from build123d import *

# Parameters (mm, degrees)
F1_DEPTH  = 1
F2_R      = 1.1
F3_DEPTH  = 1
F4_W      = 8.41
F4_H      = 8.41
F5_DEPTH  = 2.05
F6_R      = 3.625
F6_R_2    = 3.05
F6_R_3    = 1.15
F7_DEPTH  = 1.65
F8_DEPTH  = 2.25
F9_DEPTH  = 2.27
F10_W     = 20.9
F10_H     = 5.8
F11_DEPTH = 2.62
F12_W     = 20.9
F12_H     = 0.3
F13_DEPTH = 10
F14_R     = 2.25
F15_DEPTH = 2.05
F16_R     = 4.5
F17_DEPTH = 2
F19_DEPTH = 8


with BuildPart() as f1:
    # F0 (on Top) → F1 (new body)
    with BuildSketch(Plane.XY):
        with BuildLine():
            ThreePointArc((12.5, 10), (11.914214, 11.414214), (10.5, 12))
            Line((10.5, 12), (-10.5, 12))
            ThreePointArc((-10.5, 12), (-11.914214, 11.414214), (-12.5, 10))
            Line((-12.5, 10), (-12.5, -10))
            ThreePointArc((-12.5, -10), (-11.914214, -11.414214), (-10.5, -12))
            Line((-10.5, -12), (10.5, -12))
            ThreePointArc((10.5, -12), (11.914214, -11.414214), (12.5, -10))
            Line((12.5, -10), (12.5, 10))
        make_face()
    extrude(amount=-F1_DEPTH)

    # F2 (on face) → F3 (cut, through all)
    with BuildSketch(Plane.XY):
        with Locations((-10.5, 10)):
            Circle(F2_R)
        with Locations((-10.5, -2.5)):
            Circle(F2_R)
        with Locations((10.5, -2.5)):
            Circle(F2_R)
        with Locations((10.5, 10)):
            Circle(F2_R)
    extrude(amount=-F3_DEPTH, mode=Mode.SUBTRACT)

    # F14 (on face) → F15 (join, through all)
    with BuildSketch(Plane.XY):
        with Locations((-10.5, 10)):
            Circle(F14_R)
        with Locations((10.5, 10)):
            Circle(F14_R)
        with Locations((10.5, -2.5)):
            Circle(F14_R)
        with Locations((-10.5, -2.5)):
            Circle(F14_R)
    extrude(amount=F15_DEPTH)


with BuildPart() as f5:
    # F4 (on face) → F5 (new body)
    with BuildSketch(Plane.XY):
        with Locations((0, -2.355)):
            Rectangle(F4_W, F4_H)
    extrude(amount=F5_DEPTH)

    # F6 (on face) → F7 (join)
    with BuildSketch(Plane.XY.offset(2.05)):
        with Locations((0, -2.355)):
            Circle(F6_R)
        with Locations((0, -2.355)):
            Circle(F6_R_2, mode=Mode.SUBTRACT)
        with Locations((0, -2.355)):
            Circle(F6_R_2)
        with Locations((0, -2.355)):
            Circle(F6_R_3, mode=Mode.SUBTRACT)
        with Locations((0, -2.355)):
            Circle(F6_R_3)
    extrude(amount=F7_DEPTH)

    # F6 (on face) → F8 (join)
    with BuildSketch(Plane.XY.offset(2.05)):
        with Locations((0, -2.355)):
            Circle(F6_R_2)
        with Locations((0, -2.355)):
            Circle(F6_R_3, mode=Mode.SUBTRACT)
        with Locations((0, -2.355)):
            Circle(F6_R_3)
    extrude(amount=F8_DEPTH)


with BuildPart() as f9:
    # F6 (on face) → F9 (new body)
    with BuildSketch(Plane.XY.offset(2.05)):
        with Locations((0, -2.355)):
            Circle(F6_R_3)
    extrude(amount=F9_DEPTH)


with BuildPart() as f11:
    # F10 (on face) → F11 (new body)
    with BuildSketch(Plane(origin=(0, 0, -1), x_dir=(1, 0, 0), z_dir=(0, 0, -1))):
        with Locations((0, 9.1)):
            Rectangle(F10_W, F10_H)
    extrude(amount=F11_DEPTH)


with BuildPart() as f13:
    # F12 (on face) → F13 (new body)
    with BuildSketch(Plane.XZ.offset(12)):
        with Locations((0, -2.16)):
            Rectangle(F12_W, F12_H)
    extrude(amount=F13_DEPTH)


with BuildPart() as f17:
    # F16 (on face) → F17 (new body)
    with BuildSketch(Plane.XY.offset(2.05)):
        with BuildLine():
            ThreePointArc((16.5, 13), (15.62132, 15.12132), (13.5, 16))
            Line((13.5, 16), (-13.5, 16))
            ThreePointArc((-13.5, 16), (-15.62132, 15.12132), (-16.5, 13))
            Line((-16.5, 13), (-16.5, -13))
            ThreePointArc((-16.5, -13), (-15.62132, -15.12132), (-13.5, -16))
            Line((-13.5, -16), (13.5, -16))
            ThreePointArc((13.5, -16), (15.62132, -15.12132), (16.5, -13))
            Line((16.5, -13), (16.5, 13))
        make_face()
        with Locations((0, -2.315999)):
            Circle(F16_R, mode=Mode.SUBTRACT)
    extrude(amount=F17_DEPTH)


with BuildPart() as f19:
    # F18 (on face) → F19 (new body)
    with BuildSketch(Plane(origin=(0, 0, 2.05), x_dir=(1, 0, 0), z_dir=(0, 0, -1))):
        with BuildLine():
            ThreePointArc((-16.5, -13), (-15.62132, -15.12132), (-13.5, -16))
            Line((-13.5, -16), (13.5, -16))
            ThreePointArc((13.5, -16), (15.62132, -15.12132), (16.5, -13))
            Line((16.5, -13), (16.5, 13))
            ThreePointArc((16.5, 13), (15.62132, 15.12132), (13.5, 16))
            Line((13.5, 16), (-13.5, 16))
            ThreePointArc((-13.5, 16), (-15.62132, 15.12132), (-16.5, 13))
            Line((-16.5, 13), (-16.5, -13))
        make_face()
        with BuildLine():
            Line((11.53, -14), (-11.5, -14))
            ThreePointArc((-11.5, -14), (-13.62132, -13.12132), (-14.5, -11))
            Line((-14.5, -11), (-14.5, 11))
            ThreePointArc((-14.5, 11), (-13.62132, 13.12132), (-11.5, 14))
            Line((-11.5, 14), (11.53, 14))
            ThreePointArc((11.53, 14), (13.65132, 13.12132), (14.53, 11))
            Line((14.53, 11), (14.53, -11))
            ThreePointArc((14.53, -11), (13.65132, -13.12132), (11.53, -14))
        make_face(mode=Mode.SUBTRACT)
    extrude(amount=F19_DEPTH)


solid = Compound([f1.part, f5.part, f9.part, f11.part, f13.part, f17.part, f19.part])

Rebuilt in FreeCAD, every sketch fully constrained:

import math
import FreeCAD as App
import Part
import Sketcher
Q = App.Units.Quantity

doc = App.newDocument("Part")
body = doc.addObject("PartDesign::Body", "Body")

# Sketch on XY plane
sketch1 = doc.addObject("Sketcher::SketchObject", "Sketch")
body.addObject(sketch1)
sketch1.AttachmentSupport = (doc.XY_Plane, [""])
sketch1.MapMode = "FlatFace"
sketch1.addGeometry(Part.ArcOfCircle(Part.Circle(App.Vector(10.5, 10, 0), App.Vector(0, 0, 1), 2), math.radians(0), math.radians(90)), False)
sketch1.addGeometry(Part.LineSegment(App.Vector(10.5, 12, 0), App.Vector(-10.5, 12, 0)), False)
sketch1.addGeometry(Part.ArcOfCircle(Part.Circle(App.Vector(-10.5, 10, 0), App.Vector(0, 0, 1), 2), math.radians(90), math.radians(180)), False)
sketch1.addGeometry(Part.LineSegment(App.Vector(-12.5, 10, 0), App.Vector(-12.5, -10, 0)), False)
sketch1.addGeometry(Part.ArcOfCircle(Part.Circle(App.Vector(-10.5, -10, 0), App.Vector(0, 0, 1), 2), math.radians(180), math.radians(270)), False)
sketch1.addGeometry(Part.LineSegment(App.Vector(-10.5, -12, 0), App.Vector(10.5, -12, 0)), False)
sketch1.addGeometry(Part.ArcOfCircle(Part.Circle(App.Vector(10.5, -10, 0), App.Vector(0, 0, 1), 2), math.radians(-90), math.radians(0)), False)
sketch1.addGeometry(Part.LineSegment(App.Vector(12.5, -10, 0), App.Vector(12.5, 10, 0)), False)
sketch1.addConstraint(Sketcher.Constraint("Tangent", 0, 2, 1, 1))
sketch1.addConstraint(Sketcher.Constraint("Tangent", 1, 2, 2, 1))
sketch1.addConstraint(Sketcher.Constraint("Tangent", 2, 2, 3, 1))
sketch1.addConstraint(Sketcher.Constraint("Tangent", 3, 2, 4, 1))
sketch1.addConstraint(Sketcher.Constraint("Tangent", 4, 2, 5, 1))
sketch1.addConstraint(Sketcher.Constraint("Tangent", 5, 2, 6, 1))
sketch1.addConstraint(Sketcher.Constraint("Tangent", 6, 2, 7, 1))
sketch1.addConstraint(Sketcher.Constraint("Tangent", 7, 2, 0, 1))
sketch1.addConstraint(Sketcher.Constraint("Horizontal", 1))
sketch1.addConstraint(Sketcher.Constraint("Vertical", 3))
sketch1.addConstraint(Sketcher.Constraint("Horizontal", 5))
sketch1.addConstraint(Sketcher.Constraint("Vertical", 7))
sketch1.addConstraint(Sketcher.Constraint("Equal", 0, 2))
sketch1.addConstraint(Sketcher.Constraint("Equal", 2, 4))
sketch1.addConstraint(Sketcher.Constraint("Equal", 4, 6))
sketch1.addConstraint(Sketcher.Constraint("Symmetric", 0, 3, 4, 3, -1, 1))
sketch1.addConstraint(Sketcher.Constraint("Radius", 0, Q("1.999999 mm")))
sketch1.addConstraint(Sketcher.Constraint("DistanceX", 1, 2, 1, 1, Q("21 mm")))
sketch1.addConstraint(Sketcher.Constraint("DistanceY", 3, 2, 3, 1, Q("20 mm")))
pad1 = doc.addObject("PartDesign::Pad", "Pad")
body.addObject(pad1)
pad1.Profile = sketch1
pad1.Length = 1
pad1.Reversed = True

# Sketch on XY plane
sketch2 = doc.addObject("Sketcher::SketchObject", "Sketch001")
body.addObject(sketch2)
sketch2.AttachmentSupport = (doc.XY_Plane, [""])
sketch2.MapMode = "FlatFace"
sketch2.addGeometry(Part.Circle(App.Vector(-10.5, 10, 0), App.Vector(0, 0, 1), 1.1), False)
sketch2.addGeometry(Part.Circle(App.Vector(-10.5, -2.5, 0), App.Vector(0, 0, 1), 1.1), False)
sketch2.addGeometry(Part.Circle(App.Vector(10.5, -2.5, 0), App.Vector(0, 0, 1), 1.1), False)
sketch2.addGeometry(Part.Circle(App.Vector(10.5, 10, 0), App.Vector(0, 0, 1), 1.1), False)
sketch2.addConstraint(Sketcher.Constraint("Equal", 0, 1))
sketch2.addConstraint(Sketcher.Constraint("Equal", 1, 2))
sketch2.addConstraint(Sketcher.Constraint("Equal", 2, 3))
sketch2.addConstraint(Sketcher.Constraint("Symmetric", 1, 3, 2, 3, -2))
sketch2.addConstraint(Sketcher.Constraint("Symmetric", 0, 3, 3, 3, -2))
sketch2.addConstraint(Sketcher.Constraint("Vertical", 0, 3, 1, 3))
sketch2.addConstraint(Sketcher.Constraint("Diameter", 0, Q("2.2 mm")))
sketch2.addConstraint(Sketcher.Constraint("DistanceY", -1, 1, 0, 3, Q("10 mm")))
sketch2.addConstraint(Sketcher.Constraint("DistanceX", 1, 3, 2, 3, Q("21 mm")))
sketch2.addConstraint(Sketcher.Constraint("DistanceY", 1, 3, -1, 1, Q("2.5 mm")))
pocket1 = doc.addObject("PartDesign::Pocket", "Pocket")
body.addObject(pocket1)
pocket1.Profile = sketch2
pocket1.Type = "ThroughAll"

# Sketch on XY plane
sketch3 = doc.addObject("Sketcher::SketchObject", "Sketch002")
body.addObject(sketch3)
sketch3.AttachmentSupport = (doc.XY_Plane, [""])
sketch3.MapMode = "FlatFace"
sketch3.addGeometry(Part.Circle(App.Vector(-10.5, 10, 0), App.Vector(0, 0, 1), 2.2), False)
sketch3.addGeometry(Part.Circle(App.Vector(10.5, 10, 0), App.Vector(0, 0, 1), 2.2), False)
sketch3.addGeometry(Part.Circle(App.Vector(10.5, -2.5, 0), App.Vector(0, 0, 1), 2.2), False)
sketch3.addGeometry(Part.Circle(App.Vector(-10.5, -2.5, 0), App.Vector(0, 0, 1), 2.2), False)
sketch3.addConstraint(Sketcher.Constraint("Equal", 0, 1))
sketch3.addConstraint(Sketcher.Constraint("Equal", 1, 2))
sketch3.addConstraint(Sketcher.Constraint("Equal", 2, 3))
sketch3.addConstraint(Sketcher.Constraint("Symmetric", 0, 3, 1, 3, -2))
sketch3.addConstraint(Sketcher.Constraint("Symmetric", 2, 3, 3, 3, -2))
sketch3.addConstraint(Sketcher.Constraint("Vertical", 1, 3, 2, 3))
sketch3.addConstraint(Sketcher.Constraint("Diameter", 0, Q("4.5 mm")))
sketch3.addConstraint(Sketcher.Constraint("DistanceY", -1, 1, 0, 3, Q("10 mm")))
sketch3.addConstraint(Sketcher.Constraint("DistanceX", 0, 3, 1, 3, Q("21 mm")))
sketch3.addConstraint(Sketcher.Constraint("DistanceY", 2, 3, -1, 1, Q("2.5 mm")))
pad2 = doc.addObject("PartDesign::Pad", "Pad001")
body.addObject(pad2)
pad2.Profile = sketch3
pad2.Length = 2.05
body2 = doc.addObject("PartDesign::Body", "Body001")

# Sketch on XY plane
sketch4 = doc.addObject("Sketcher::SketchObject", "Sketch003")
body2.addObject(sketch4)
sketch4.AttachmentSupport = (doc.getObject("XY_Plane001"), [""])
sketch4.MapMode = "FlatFace"
sketch4.addGeometry(Part.LineSegment(App.Vector(-4, 2, 0), App.Vector(-4, -7, 0)), False)
sketch4.addGeometry(Part.LineSegment(App.Vector(-4, -7, 0), App.Vector(4, -7, 0)), False)
sketch4.addGeometry(Part.LineSegment(App.Vector(4, -7, 0), App.Vector(4, 2, 0)), False)
sketch4.addGeometry(Part.LineSegment(App.Vector(4, 2, 0), App.Vector(-4, 2, 0)), False)
sketch4.addConstraint(Sketcher.Constraint("Coincident", 0, 2, 1, 1))
sketch4.addConstraint(Sketcher.Constraint("Coincident", 1, 2, 2, 1))
sketch4.addConstraint(Sketcher.Constraint("Coincident", 2, 2, 3, 1))
sketch4.addConstraint(Sketcher.Constraint("Coincident", 3, 2, 0, 1))
sketch4.addConstraint(Sketcher.Constraint("Vertical", 0))
sketch4.addConstraint(Sketcher.Constraint("Horizontal", 1))
sketch4.addConstraint(Sketcher.Constraint("Vertical", 2))
sketch4.addConstraint(Sketcher.Constraint("Horizontal", 3))
sketch4.addConstraint(Sketcher.Constraint("Equal", 3, 0))
sketch4.addConstraint(Sketcher.Constraint("DistanceX", 1, 1, 1, 2, Q("8.41 mm")))
sketch4.addConstraint(Sketcher.Constraint("DistanceY", 0, 2, -1, 1, Q("6.56 mm")))
sketch4.addConstraint(Sketcher.Constraint("DistanceX", 0, 2, -1, 1, Q("4.205 mm")))
pad3 = doc.addObject("PartDesign::Pad", "Pad002")
body2.addObject(pad3)
pad3.Profile = sketch4
pad3.Length = 2.05

# Sketch on XY plane
sketch5 = doc.addObject("Sketcher::SketchObject", "Sketch004")
body2.addObject(sketch5)
sketch5.AttachmentSupport = (doc.getObject("XY_Plane001"), [""])
sketch5.MapMode = "FlatFace"
sketch5.AttachmentOffset = App.Placement(App.Vector(0, 0, 2.05), App.Rotation())
sketch5.addGeometry(Part.Circle(App.Vector(0, -2.4, 0), App.Vector(0, 0, 1), 3.6), False)
sketch5.addConstraint(Sketcher.Constraint("PointOnObject", 0, 3, -2))
sketch5.addConstraint(Sketcher.Constraint("Diameter", 0, Q("7.25 mm")))
sketch5.addConstraint(Sketcher.Constraint("DistanceY", 0, 3, -1, 1, Q("2.355 mm")))
pad4 = doc.addObject("PartDesign::Pad", "Pad003")
body2.addObject(pad4)
pad4.Profile = sketch5
pad4.Length = 1.65

# Sketch on XY plane
sketch6 = doc.addObject("Sketcher::SketchObject", "Sketch005")
body2.addObject(sketch6)
sketch6.AttachmentSupport = (doc.getObject("XY_Plane001"), [""])
sketch6.MapMode = "FlatFace"
sketch6.AttachmentOffset = App.Placement(App.Vector(0, 0, 2.05), App.Rotation())
sketch6.addGeometry(Part.Circle(App.Vector(0, -2.4, 0), App.Vector(0, 0, 1), 3), False)
sketch6.addConstraint(Sketcher.Constraint("PointOnObject", 0, 3, -2))
sketch6.addConstraint(Sketcher.Constraint("Diameter", 0, Q("6.1 mm")))
sketch6.addConstraint(Sketcher.Constraint("DistanceY", 0, 3, -1, 1, Q("2.355 mm")))
pad5 = doc.addObject("PartDesign::Pad", "Pad004")
body2.addObject(pad5)
pad5.Profile = sketch6
pad5.Length = 2.25
body3 = doc.addObject("PartDesign::Body", "Body002")

# Sketch on XY plane
sketch7 = doc.addObject("Sketcher::SketchObject", "Sketch006")
body3.addObject(sketch7)
sketch7.AttachmentSupport = (doc.getObject("XY_Plane002"), [""])
sketch7.MapMode = "FlatFace"
sketch7.AttachmentOffset = App.Placement(App.Vector(0, 0, 2.05), App.Rotation())
sketch7.addGeometry(Part.Circle(App.Vector(0, -2.4, 0), App.Vector(0, 0, 1), 1.1), False)
sketch7.addConstraint(Sketcher.Constraint("PointOnObject", 0, 3, -2))
sketch7.addConstraint(Sketcher.Constraint("Diameter", 0, Q("2.3 mm")))
sketch7.addConstraint(Sketcher.Constraint("DistanceY", 0, 3, -1, 1, Q("2.355 mm")))
pad6 = doc.addObject("PartDesign::Pad", "Pad005")
body3.addObject(pad6)
pad6.Profile = sketch7
pad6.Length = 2.27
body4 = doc.addObject("PartDesign::Body", "Body003")

# Sketch on XY plane
sketch8 = doc.addObject("Sketcher::SketchObject", "Sketch007")
body4.addObject(sketch8)
sketch8.AttachmentSupport = (doc.getObject("XY_Plane003"), [""])
sketch8.MapMode = "FlatFace"
sketch8.AttachmentOffset = App.Placement(App.Vector(0, 0, -1), App.Rotation())
sketch8.addGeometry(Part.LineSegment(App.Vector(-10, -12, 0), App.Vector(-10, -6, 0)), False)
sketch8.addGeometry(Part.LineSegment(App.Vector(-10, -6, 0), App.Vector(10, -6, 0)), False)
sketch8.addGeometry(Part.LineSegment(App.Vector(10, -6, 0), App.Vector(10, -12, 0)), False)
sketch8.addGeometry(Part.LineSegment(App.Vector(10, -12, 0), App.Vector(-10, -12, 0)), False)
sketch8.addConstraint(Sketcher.Constraint("Coincident", 0, 2, 1, 1))
sketch8.addConstraint(Sketcher.Constraint("Coincident", 1, 2, 2, 1))
sketch8.addConstraint(Sketcher.Constraint("Coincident", 2, 2, 3, 1))
sketch8.addConstraint(Sketcher.Constraint("Coincident", 3, 2, 0, 1))
sketch8.addConstraint(Sketcher.Constraint("Vertical", 0))
sketch8.addConstraint(Sketcher.Constraint("Horizontal", 1))
sketch8.addConstraint(Sketcher.Constraint("Vertical", 2))
sketch8.addConstraint(Sketcher.Constraint("Horizontal", 3))
sketch8.addConstraint(Sketcher.Constraint("DistanceX", 1, 1, 1, 2, Q("20.9 mm")))
sketch8.addConstraint(Sketcher.Constraint("DistanceY", 0, 1, 0, 2, Q("5.8 mm")))
sketch8.addConstraint(Sketcher.Constraint("DistanceY", 2, 2, -1, 1, Q("12 mm")))
sketch8.addConstraint(Sketcher.Constraint("DistanceX", 0, 2, -1, 1, Q("10.45 mm")))
pad7 = doc.addObject("PartDesign::Pad", "Pad006")
body4.addObject(pad7)
pad7.Profile = sketch8
pad7.Length = 2.62
pad7.Reversed = True
body5 = doc.addObject("PartDesign::Body", "Body004")

# Sketch on XZ plane
sketch9 = doc.addObject("Sketcher::SketchObject", "Sketch008")
body5.addObject(sketch9)
sketch9.AttachmentSupport = (doc.getObject("XZ_Plane004"), [""])
sketch9.MapMode = "FlatFace"
sketch9.AttachmentOffset = App.Placement(App.Vector(0, 0, 12), App.Rotation())
sketch9.addGeometry(Part.LineSegment(App.Vector(-10.45, -2.01, 0), App.Vector(-10.45, -2.31, 0)), False)
sketch9.addGeometry(Part.LineSegment(App.Vector(-10.45, -2.31, 0), App.Vector(10.45, -2.31, 0)), False)
sketch9.addGeometry(Part.LineSegment(App.Vector(10.45, -2.31, 0), App.Vector(10.45, -2.01, 0)), False)
sketch9.addGeometry(Part.LineSegment(App.Vector(10.45, -2.01, 0), App.Vector(-10.45, -2.01, 0)), False)
sketch9.addConstraint(Sketcher.Constraint("Coincident", 0, 2, 1, 1))
sketch9.addConstraint(Sketcher.Constraint("Coincident", 1, 2, 2, 1))
sketch9.addConstraint(Sketcher.Constraint("Coincident", 2, 2, 3, 1))
sketch9.addConstraint(Sketcher.Constraint("Coincident", 3, 2, 0, 1))
sketch9.addConstraint(Sketcher.Constraint("Vertical", 0))
sketch9.addConstraint(Sketcher.Constraint("Horizontal", 1))
sketch9.addConstraint(Sketcher.Constraint("Vertical", 2))
sketch9.addConstraint(Sketcher.Constraint("Horizontal", 3))
sketch9.addConstraint(Sketcher.Constraint("DistanceX", 1, 1, 1, 2, Q("20.9 mm")))
sketch9.addConstraint(Sketcher.Constraint("DistanceY", 0, 2, 0, 1, Q("0.3 mm")))
sketch9.addConstraint(Sketcher.Constraint("DistanceX", 0, 2, -1, 1, Q("10.45 mm")))
sketch9.addConstraint(Sketcher.Constraint("DistanceY", 0, 2, -1, 1, Q("2.31 mm")))
pad8 = doc.addObject("PartDesign::Pad", "Pad007")
body5.addObject(pad8)
pad8.Profile = sketch9
pad8.Length = 10
body6 = doc.addObject("PartDesign::Body", "Body005")

# Sketch on XY plane
sketch10 = doc.addObject("Sketcher::SketchObject", "Sketch009")
body6.addObject(sketch10)
sketch10.AttachmentSupport = (doc.getObject("XY_Plane005"), [""])
sketch10.MapMode = "FlatFace"
sketch10.AttachmentOffset = App.Placement(App.Vector(0, 0, 2.05), App.Rotation())
sketch10.addGeometry(Part.ArcOfCircle(Part.Circle(App.Vector(13.5, 13, 0), App.Vector(0, 0, 1), 3), math.radians(0), math.radians(90)), False)
sketch10.addGeometry(Part.LineSegment(App.Vector(13.5, 16, 0), App.Vector(-13.5, 16, 0)), False)
sketch10.addGeometry(Part.ArcOfCircle(Part.Circle(App.Vector(-13.5, 13, 0), App.Vector(0, 0, 1), 3), math.radians(90), math.radians(180)), False)
sketch10.addGeometry(Part.LineSegment(App.Vector(-16.5, 13, 0), App.Vector(-16.5, -13, 0)), False)
sketch10.addGeometry(Part.ArcOfCircle(Part.Circle(App.Vector(-13.5, -13, 0), App.Vector(0, 0, 1), 3), math.radians(-180), math.radians(-90)), False)
sketch10.addGeometry(Part.LineSegment(App.Vector(-13.5, -16, 0), App.Vector(13.5, -16, 0)), False)
sketch10.addGeometry(Part.ArcOfCircle(Part.Circle(App.Vector(13.5, -13, 0), App.Vector(0, 0, 1), 3), math.radians(-90), math.radians(0)), False)
sketch10.addGeometry(Part.LineSegment(App.Vector(16.5, -13, 0), App.Vector(16.5, 13, 0)), False)
sketch10.addGeometry(Part.Circle(App.Vector(0, -2.3, 0), App.Vector(0, 0, 1), 4.5), False)
sketch10.addConstraint(Sketcher.Constraint("Tangent", 0, 2, 1, 1))
sketch10.addConstraint(Sketcher.Constraint("Tangent", 1, 2, 2, 1))
sketch10.addConstraint(Sketcher.Constraint("Tangent", 2, 2, 3, 1))
sketch10.addConstraint(Sketcher.Constraint("Tangent", 3, 2, 4, 1))
sketch10.addConstraint(Sketcher.Constraint("Tangent", 4, 2, 5, 1))
sketch10.addConstraint(Sketcher.Constraint("Tangent", 5, 2, 6, 1))
sketch10.addConstraint(Sketcher.Constraint("Tangent", 6, 2, 7, 1))
sketch10.addConstraint(Sketcher.Constraint("Tangent", 7, 2, 0, 1))
sketch10.addConstraint(Sketcher.Constraint("Horizontal", 1))
sketch10.addConstraint(Sketcher.Constraint("Vertical", 3))
sketch10.addConstraint(Sketcher.Constraint("Horizontal", 5))
sketch10.addConstraint(Sketcher.Constraint("Vertical", 7))
sketch10.addConstraint(Sketcher.Constraint("Equal", 0, 2))
sketch10.addConstraint(Sketcher.Constraint("Equal", 2, 4))
sketch10.addConstraint(Sketcher.Constraint("Equal", 4, 6))
sketch10.addConstraint(Sketcher.Constraint("Symmetric", 0, 3, 4, 3, -1, 1))
sketch10.addConstraint(Sketcher.Constraint("PointOnObject", 8, 3, -2))
sketch10.addConstraint(Sketcher.Constraint("Diameter", 8, Q("9 mm")))
sketch10.addConstraint(Sketcher.Constraint("Radius", 0, Q("3.000001 mm")))
sketch10.addConstraint(Sketcher.Constraint("DistanceX", 1, 2, 1, 1, Q("27 mm")))
sketch10.addConstraint(Sketcher.Constraint("DistanceY", 3, 2, 3, 1, Q("26 mm")))
sketch10.addConstraint(Sketcher.Constraint("DistanceY", 8, 3, -1, 1, Q("2.315999 mm")))
pad9 = doc.addObject("PartDesign::Pad", "Pad008")
body6.addObject(pad9)
pad9.Profile = sketch10
pad9.Length = 2
body7 = doc.addObject("PartDesign::Body", "Body006")

# Sketch on XY plane
sketch11 = doc.addObject("Sketcher::SketchObject", "Sketch010")
body7.addObject(sketch11)
sketch11.AttachmentSupport = (doc.getObject("XY_Plane006"), [""])
sketch11.MapMode = "FlatFace"
sketch11.AttachmentOffset = App.Placement(App.Vector(0, 0, 2.05), App.Rotation())
sketch11.addGeometry(Part.ArcOfCircle(Part.Circle(App.Vector(-13.5, 13, 0), App.Vector(0, 0, 1), 3), math.radians(90), math.radians(180)), False)
sketch11.addGeometry(Part.LineSegment(App.Vector(-13.5, 16, 0), App.Vector(13.5, 16, 0)), False)
sketch11.addGeometry(Part.ArcOfCircle(Part.Circle(App.Vector(13.5, 13, 0), App.Vector(0, 0, 1), 3), math.radians(0), math.radians(90)), False)
sketch11.addGeometry(Part.LineSegment(App.Vector(16.5, 13, 0), App.Vector(16.5, -13, 0)), False)
sketch11.addGeometry(Part.ArcOfCircle(Part.Circle(App.Vector(13.5, -13, 0), App.Vector(0, 0, 1), 3), math.radians(-90), math.radians(0)), False)
sketch11.addGeometry(Part.LineSegment(App.Vector(13.5, -16, 0), App.Vector(-13.5, -16, 0)), False)
sketch11.addGeometry(Part.ArcOfCircle(Part.Circle(App.Vector(-13.5, -13, 0), App.Vector(0, 0, 1), 3), math.radians(-180), math.radians(-90)), False)
sketch11.addGeometry(Part.LineSegment(App.Vector(-16.5, -13, 0), App.Vector(-16.5, 13, 0)), False)
sketch11.addGeometry(Part.ArcOfCircle(Part.Circle(App.Vector(11.5, 11, 0), App.Vector(0, 0, 1), 3), math.radians(0), math.radians(90)), False)
sketch11.addGeometry(Part.LineSegment(App.Vector(11.5, 14, 0), App.Vector(-11.5, 14, 0)), False)
sketch11.addGeometry(Part.ArcOfCircle(Part.Circle(App.Vector(-11.5, 11, 0), App.Vector(0, 0, 1), 3), math.radians(90), math.radians(180)), False)
sketch11.addGeometry(Part.LineSegment(App.Vector(-14.5, 11, 0), App.Vector(-14.5, -11, 0)), False)
sketch11.addGeometry(Part.ArcOfCircle(Part.Circle(App.Vector(-11.5, -11, 0), App.Vector(0, 0, 1), 3), math.radians(-180), math.radians(-90)), False)
sketch11.addGeometry(Part.LineSegment(App.Vector(-11.5, -14, 0), App.Vector(11.5, -14, 0)), False)
sketch11.addGeometry(Part.ArcOfCircle(Part.Circle(App.Vector(11.5, -11, 0), App.Vector(0, 0, 1), 3), math.radians(-90), math.radians(0)), False)
sketch11.addGeometry(Part.LineSegment(App.Vector(14.5, -11, 0), App.Vector(14.5, 11, 0)), False)
sketch11.addConstraint(Sketcher.Constraint("Tangent", 0, 1, 1, 1))
sketch11.addConstraint(Sketcher.Constraint("Tangent", 1, 2, 2, 2))
sketch11.addConstraint(Sketcher.Constraint("Tangent", 2, 1, 3, 1))
sketch11.addConstraint(Sketcher.Constraint("Tangent", 3, 2, 4, 2))
sketch11.addConstraint(Sketcher.Constraint("Tangent", 4, 1, 5, 1))
sketch11.addConstraint(Sketcher.Constraint("Tangent", 5, 2, 6, 2))
sketch11.addConstraint(Sketcher.Constraint("Tangent", 6, 1, 7, 1))
sketch11.addConstraint(Sketcher.Constraint("Tangent", 7, 2, 0, 2))
sketch11.addConstraint(Sketcher.Constraint("Tangent", 8, 2, 9, 1))
sketch11.addConstraint(Sketcher.Constraint("Tangent", 9, 2, 10, 1))
sketch11.addConstraint(Sketcher.Constraint("Tangent", 10, 2, 11, 1))
sketch11.addConstraint(Sketcher.Constraint("Tangent", 11, 2, 12, 1))
sketch11.addConstraint(Sketcher.Constraint("Tangent", 12, 2, 13, 1))
sketch11.addConstraint(Sketcher.Constraint("Tangent", 13, 2, 14, 1))
sketch11.addConstraint(Sketcher.Constraint("Tangent", 14, 2, 15, 1))
sketch11.addConstraint(Sketcher.Constraint("Tangent", 15, 2, 8, 1))
sketch11.addConstraint(Sketcher.Constraint("Horizontal", 1))
sketch11.addConstraint(Sketcher.Constraint("Vertical", 3))
sketch11.addConstraint(Sketcher.Constraint("Horizontal", 5))
sketch11.addConstraint(Sketcher.Constraint("Vertical", 7))
sketch11.addConstraint(Sketcher.Constraint("Horizontal", 9))
sketch11.addConstraint(Sketcher.Constraint("Vertical", 11))
sketch11.addConstraint(Sketcher.Constraint("Horizontal", 13))
sketch11.addConstraint(Sketcher.Constraint("Vertical", 15))
sketch11.addConstraint(Sketcher.Constraint("Equal", 0, 2))
sketch11.addConstraint(Sketcher.Constraint("Equal", 2, 4))
sketch11.addConstraint(Sketcher.Constraint("Equal", 4, 6))
sketch11.addConstraint(Sketcher.Constraint("Equal", 6, 8))
sketch11.addConstraint(Sketcher.Constraint("Equal", 8, 10))
sketch11.addConstraint(Sketcher.Constraint("Equal", 10, 12))
sketch11.addConstraint(Sketcher.Constraint("Equal", 12, 14))
sketch11.addConstraint(Sketcher.Constraint("Symmetric", 0, 3, 4, 3, -1, 1))
sketch11.addConstraint(Sketcher.Constraint("Radius", 0, Q("3.000001 mm")))
sketch11.addConstraint(Sketcher.Constraint("DistanceX", 1, 1, 1, 2, Q("27 mm")))
sketch11.addConstraint(Sketcher.Constraint("DistanceY", 3, 2, 3, 1, Q("26 mm")))
sketch11.addConstraint(Sketcher.Constraint("DistanceY", 11, 2, 11, 1, Q("22 mm")))
sketch11.addConstraint(Sketcher.Constraint("DistanceY", -1, 1, 8, 3, Q("10.999999 mm")))
sketch11.addConstraint(Sketcher.Constraint("DistanceX", 0, 3, 10, 3, Q("2 mm")))
sketch11.addConstraint(Sketcher.Constraint("DistanceX", 9, 2, 9, 1, Q("23.03 mm")))
pad10 = doc.addObject("PartDesign::Pad", "Pad009")
body7.addObject(pad10)
pad10.Profile = sketch11
pad10.Length = 8
pad10.Reversed = True

doc.recompute()
